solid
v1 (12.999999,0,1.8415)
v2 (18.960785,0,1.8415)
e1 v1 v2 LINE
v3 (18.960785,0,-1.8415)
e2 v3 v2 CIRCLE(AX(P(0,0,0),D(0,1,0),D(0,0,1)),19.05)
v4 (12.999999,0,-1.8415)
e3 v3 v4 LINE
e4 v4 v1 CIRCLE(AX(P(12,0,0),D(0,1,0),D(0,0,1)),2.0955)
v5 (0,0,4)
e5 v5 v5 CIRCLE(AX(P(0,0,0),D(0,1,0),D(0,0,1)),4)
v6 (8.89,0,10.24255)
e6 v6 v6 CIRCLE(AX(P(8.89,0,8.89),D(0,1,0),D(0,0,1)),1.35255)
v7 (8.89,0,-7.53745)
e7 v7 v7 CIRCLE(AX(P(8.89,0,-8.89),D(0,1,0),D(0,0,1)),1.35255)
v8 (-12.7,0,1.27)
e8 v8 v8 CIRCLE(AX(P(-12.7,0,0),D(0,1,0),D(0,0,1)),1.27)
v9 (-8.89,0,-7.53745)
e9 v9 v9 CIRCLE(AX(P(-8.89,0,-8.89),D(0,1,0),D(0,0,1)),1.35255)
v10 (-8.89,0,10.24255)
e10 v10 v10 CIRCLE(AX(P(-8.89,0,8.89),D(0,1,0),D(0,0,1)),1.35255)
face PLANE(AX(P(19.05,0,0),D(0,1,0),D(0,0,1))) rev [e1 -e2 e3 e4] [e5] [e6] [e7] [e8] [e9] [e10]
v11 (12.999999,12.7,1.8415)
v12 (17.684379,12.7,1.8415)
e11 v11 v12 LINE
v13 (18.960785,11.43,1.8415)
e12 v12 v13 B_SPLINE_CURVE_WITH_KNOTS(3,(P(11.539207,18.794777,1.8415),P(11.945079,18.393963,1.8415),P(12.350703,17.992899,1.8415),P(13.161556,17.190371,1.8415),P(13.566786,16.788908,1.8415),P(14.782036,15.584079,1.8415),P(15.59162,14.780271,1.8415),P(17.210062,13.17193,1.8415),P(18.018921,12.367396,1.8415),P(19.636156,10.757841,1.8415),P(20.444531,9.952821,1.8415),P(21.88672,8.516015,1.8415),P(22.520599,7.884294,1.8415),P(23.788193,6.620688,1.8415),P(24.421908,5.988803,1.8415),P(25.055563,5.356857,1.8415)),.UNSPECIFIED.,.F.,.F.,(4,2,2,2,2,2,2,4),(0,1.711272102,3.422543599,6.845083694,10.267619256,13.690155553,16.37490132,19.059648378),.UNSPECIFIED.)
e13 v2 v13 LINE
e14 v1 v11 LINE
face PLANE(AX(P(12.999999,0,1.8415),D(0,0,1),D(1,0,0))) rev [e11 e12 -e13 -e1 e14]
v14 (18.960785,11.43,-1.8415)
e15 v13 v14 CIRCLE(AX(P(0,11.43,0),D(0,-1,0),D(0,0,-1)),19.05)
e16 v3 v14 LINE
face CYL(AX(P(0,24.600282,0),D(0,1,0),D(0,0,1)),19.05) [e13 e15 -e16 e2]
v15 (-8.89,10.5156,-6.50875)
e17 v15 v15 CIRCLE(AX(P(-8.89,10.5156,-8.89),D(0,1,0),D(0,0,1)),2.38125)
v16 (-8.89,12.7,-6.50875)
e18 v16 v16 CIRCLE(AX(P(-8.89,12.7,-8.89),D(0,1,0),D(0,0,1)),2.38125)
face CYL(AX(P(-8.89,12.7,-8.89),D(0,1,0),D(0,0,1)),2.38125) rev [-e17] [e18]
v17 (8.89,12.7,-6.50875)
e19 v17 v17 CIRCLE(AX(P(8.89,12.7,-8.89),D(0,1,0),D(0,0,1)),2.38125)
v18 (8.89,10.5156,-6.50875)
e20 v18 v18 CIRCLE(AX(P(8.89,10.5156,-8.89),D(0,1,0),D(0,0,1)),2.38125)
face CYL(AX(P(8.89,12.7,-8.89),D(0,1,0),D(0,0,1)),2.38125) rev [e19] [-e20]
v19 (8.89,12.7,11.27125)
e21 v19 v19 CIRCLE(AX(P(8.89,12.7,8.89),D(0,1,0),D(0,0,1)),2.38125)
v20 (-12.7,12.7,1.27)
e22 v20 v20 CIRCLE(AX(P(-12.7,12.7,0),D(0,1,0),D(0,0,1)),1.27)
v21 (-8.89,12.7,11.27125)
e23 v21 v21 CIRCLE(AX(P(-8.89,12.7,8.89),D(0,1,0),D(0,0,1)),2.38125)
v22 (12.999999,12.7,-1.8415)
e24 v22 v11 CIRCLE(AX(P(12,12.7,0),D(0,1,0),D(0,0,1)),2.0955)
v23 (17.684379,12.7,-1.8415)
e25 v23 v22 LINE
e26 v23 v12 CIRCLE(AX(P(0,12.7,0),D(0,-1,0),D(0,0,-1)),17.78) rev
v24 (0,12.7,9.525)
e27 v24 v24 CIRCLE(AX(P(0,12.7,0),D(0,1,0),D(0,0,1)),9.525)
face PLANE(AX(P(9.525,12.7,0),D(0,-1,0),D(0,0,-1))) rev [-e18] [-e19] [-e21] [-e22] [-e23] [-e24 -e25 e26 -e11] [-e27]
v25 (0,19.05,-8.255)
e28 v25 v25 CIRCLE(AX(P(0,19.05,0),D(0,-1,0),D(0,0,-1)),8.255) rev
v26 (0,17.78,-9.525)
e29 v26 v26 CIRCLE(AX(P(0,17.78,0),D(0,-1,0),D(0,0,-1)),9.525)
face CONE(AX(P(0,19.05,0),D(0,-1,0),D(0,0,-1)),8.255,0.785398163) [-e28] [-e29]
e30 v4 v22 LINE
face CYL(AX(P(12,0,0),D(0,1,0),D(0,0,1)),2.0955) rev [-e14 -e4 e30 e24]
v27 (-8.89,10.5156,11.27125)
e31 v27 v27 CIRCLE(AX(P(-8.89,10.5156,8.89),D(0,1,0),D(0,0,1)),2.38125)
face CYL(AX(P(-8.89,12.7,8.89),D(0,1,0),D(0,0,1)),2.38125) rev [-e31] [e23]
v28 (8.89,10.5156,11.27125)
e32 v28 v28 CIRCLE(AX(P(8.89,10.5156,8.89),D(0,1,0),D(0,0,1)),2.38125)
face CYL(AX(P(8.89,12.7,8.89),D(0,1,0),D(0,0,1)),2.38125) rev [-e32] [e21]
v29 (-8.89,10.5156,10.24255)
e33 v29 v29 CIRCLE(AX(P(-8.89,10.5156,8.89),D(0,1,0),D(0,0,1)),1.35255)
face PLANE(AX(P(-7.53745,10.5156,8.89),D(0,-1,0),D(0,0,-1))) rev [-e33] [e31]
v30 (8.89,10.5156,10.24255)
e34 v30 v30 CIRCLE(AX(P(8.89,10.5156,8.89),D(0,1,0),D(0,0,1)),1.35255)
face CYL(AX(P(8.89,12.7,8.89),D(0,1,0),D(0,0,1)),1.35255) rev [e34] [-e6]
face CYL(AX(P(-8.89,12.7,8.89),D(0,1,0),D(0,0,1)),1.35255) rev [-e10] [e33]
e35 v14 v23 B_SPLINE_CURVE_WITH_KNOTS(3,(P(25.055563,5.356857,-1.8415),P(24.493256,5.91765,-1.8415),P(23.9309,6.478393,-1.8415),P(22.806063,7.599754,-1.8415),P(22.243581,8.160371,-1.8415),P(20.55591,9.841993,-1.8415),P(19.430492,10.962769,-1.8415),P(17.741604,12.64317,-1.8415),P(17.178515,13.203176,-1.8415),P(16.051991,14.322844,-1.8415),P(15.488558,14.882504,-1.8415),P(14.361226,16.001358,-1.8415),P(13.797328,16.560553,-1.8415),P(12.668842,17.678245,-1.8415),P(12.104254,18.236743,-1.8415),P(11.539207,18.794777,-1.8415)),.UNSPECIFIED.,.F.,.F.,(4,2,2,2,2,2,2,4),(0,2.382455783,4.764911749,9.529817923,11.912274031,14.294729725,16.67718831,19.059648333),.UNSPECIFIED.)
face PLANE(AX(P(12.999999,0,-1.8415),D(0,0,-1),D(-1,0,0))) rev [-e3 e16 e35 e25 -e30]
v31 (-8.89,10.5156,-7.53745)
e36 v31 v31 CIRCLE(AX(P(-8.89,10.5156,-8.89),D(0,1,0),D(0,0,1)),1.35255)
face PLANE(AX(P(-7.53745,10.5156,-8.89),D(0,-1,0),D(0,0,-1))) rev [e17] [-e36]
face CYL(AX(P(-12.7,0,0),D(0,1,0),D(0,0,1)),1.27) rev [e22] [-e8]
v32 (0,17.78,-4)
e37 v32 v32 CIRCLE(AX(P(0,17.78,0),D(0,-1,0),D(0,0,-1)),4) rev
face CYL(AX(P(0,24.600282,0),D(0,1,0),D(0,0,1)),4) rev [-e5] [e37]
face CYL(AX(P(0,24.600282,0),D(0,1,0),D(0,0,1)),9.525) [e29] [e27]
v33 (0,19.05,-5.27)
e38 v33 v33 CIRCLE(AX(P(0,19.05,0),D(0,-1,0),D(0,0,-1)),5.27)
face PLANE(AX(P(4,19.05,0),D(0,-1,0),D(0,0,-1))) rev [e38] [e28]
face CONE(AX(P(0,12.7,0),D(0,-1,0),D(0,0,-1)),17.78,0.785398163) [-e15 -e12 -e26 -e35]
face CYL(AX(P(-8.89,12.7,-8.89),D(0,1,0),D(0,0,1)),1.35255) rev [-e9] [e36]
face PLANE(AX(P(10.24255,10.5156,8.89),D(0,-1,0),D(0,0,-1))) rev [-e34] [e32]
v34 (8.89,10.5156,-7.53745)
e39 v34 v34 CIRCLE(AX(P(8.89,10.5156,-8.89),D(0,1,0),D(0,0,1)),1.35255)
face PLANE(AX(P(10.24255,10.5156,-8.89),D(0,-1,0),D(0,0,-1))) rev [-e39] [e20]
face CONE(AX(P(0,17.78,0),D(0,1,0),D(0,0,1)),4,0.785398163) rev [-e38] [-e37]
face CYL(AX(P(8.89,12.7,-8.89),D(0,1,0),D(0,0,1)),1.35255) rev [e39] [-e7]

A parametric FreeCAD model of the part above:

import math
import FreeCAD as App
import Part
import Sketcher

V = App.Vector
Q = App.Units.Quantity


def edges_at(feature, points):
    """Names of the edges that pass closest to the given points."""
    edges = feature.Shape.Edges
    near = lambda p: min(range(len(edges)), key=lambda i: edges[i].distToShape(Part.Vertex(*p))[0])
    return sorted({f"Edge{near(p) + 1}" for p in points})

doc = App.newDocument("Part")
params = doc.addObject("Spreadsheet::Sheet", "Params")
for row, (alias, value) in enumerate([
    ("sketch1_height", "0.5 in"),
    ("sketch1_height2", "0.75 in"),
    ("sketch1_width", "0.375 in"),
    ("revolution_angle", "360 deg"),
    ("chamfer_size", "0.05 in"),
    ("hole_diameter", "0.1065 in"),
    ("hole_depth", "0.5 in"),
    ("hole_cbore_diameter", "0.1875 in"),
    ("hole_cbore_depth", "0.086 in"),
    ("sketch3_radius", "0.75 in"),
    ("sketch4_diameter", "0.1 in"),
], start=1):
    params.set(f"A{row}", alias)
    params.set(f"B{row}", "=" + value)
    params.setAlias(f"B{row}", alias)

body = doc.addObject("PartDesign::Body", "Body")

# Sketch on XY plane
sketch1 = doc.addObject("Sketcher::SketchObject", "Sketch")
body.addObject(sketch1)
sketch1.AttachmentSupport = (doc.XY_Plane, [""])
sketch1.MapMode = "FlatFace"
sketch1.addGeometry([
    Part.LineSegment(V(9.525, 19.05, 0), V(4, 19.05, 0)),  # 0
    Part.LineSegment(V(4, 19.05, 0), V(4, 0, 0)),  # 1
    Part.LineSegment(V(4, 0, 0), V(19.05, 0, 0)),  # 2
    Part.LineSegment(V(19.05, 0, 0), V(19.05, 12.7, 0)),  # 3
    Part.LineSegment(V(19.05, 12.7, 0), V(9.525, 12.7, 0)),  # 4
    Part.LineSegment(V(9.525, 12.7, 0), V(9.525, 19.05, 0)),  # 5
], False)
sketch1.addConstraint([
    Sketcher.Constraint("Coincident", 0, 2, 1, 1),
    Sketcher.Constraint("Coincident", 1, 2, 2, 1),
    Sketcher.Constraint("Coincident", 2, 2, 3, 1),
    Sketcher.Constraint("Coincident", 3, 2, 4, 1),
    Sketcher.Constraint("Coincident", 4, 2, 5, 1),
    Sketcher.Constraint("Coincident", 5, 2, 0, 1),
    Sketcher.Constraint("Horizontal", 0),
    Sketcher.Constraint("Vertical", 1),
    Sketcher.Constraint("Horizontal", 2),
    Sketcher.Constraint("Vertical", 3),
    Sketcher.Constraint("Horizontal", 4),
    Sketcher.Constraint("Vertical", 5),
    Sketcher.Constraint("PointOnObject", 1, 2, -1),
    Sketcher.Constraint("DistanceY", 3, 1, 3, 2, Q("0.5 in")),
    Sketcher.Constraint("DistanceY", 1, 2, 1, 1, Q("0.75 in")),
    Sketcher.Constraint("DistanceX", 4, 2, 4, 1, Q("0.375 in")),
    Sketcher.Constraint("DistanceX", -1, 1, 2, 2, Q("0.75 in")),
    Sketcher.Constraint("DistanceX", 0, 2, 0, 1, Q("5.525 mm")),
])
sketch1.setExpression("Constraints[13]", "Params.sketch1_height")
sketch1.setExpression("Constraints[14]", "Params.sketch1_height2")
sketch1.setExpression("Constraints[15]", "Params.sketch1_width")
revolution = doc.addObject("PartDesign::Revolution", "Revolution")
body.addObject(revolution)
revolution.Profile = sketch1
revolution.ReferenceAxis = (sketch1, ["V_Axis"])
revolution.setExpression("Angle", "Params.revolution_angle")
doc.recompute()

chamfer = doc.addObject("PartDesign::Chamfer", "Chamfer")
body.addObject(chamfer)
chamfer.Base = (revolution, edges_at(revolution, [(-19.05, 12.7, 0), (-9.525, 19.05, 0), (-4, 19.05, 0)]))
chamfer.setExpression("Size", "Params.chamfer_size")

# Sketch on XZ plane
sketch2 = doc.addObject("Sketcher::SketchObject", "Sketch001")
body.addObject(sketch2)
sketch2.AttachmentSupport = (doc.XZ_Plane, [""])
sketch2.MapMode = "FlatFace"
sketch2.AttachmentOffset = App.Placement(V(0, 0, -0.5 * 25.4), App.Rotation())
sketch2.addGeometry([
    Part.Circle(V(-8.89, 8.89, 0), V(0, 0, 1), 1.35255),
    Part.Circle(V(8.89, 8.89, 0), V(0, 0, 1), 1.35255),
    Part.Circle(V(8.89, -8.89, 0), V(0, 0, 1), 1.35255),
    Part.Circle(V(-8.89, -8.89, 0), V(0, 0, 1), 1.35255),
], False)
sketch2.addConstraint([
    Sketcher.Constraint("Equal", 0, 1),
    Sketcher.Constraint("Equal", 1, 2),
    Sketcher.Constraint("Equal", 2, 3),
    Sketcher.Constraint("Symmetric", 0, 3, 2, 3, -1, 1),
    Sketcher.Constraint("Symmetric", 1, 3, 3, 3, -1, 1),
    Sketcher.Constraint("Symmetric", 0, 3, 1, 3, -2),
    Sketcher.Constraint("Diameter", 0, Q("0.1065 in")),
    Sketcher.Constraint("DistanceX", 0, 3, 1, 3, Q("0.7 in")),
    Sketcher.Constraint("DistanceY", 2, 3, 1, 3, Q("0.7 in")),
])
doc.recompute()
hole = doc.addObject("PartDesign::Hole", "Hole")
body.addObject(hole)
hole.Profile = sketch2
hole.ThreadType = "None"
hole.setExpression("Diameter", "Params.hole_diameter")
hole.DepthType = "Dimension"
hole.setExpression("Depth", "Params.hole_depth")
hole.DrillPoint = "Flat"
hole.HoleCutType = "Counterbore"
hole.setExpression("HoleCutDiameter", "Params.hole_cbore_diameter")
hole.setExpression("HoleCutDepth", "Params.hole_cbore_depth")
hole.Reversed = True

# Sketch on XZ plane
sketch3 = doc.addObject("Sketcher::SketchObject", "Sketch002")
body.addObject(sketch3)
sketch3.AttachmentSupport = (doc.XZ_Plane, [""])
sketch3.MapMode = "FlatFace"
sketch3.AttachmentOffset = App.Placement(V(0, 0, -0.5 * 25.4), App.Rotation())
sketch3.addGeometry([
    Part.LineSegment(V(18.960785, -1.8415, 0), V(12.999999, -1.8415, 0)),
    Part.ArcOfCircle(Part.Circle(V(12, 0, 0), V(0, 0, 1), 2.0955), math.radians(61.49649), math.radians(298.50351)),
    Part.LineSegment(V(12.999999, 1.8415, 0), V(18.960785, 1.8415, 0)),
    Part.ArcOfCircle(Part.Circle(V(0, 0, 0), V(0, 0, 1), 19.05), math.radians(-5.547254), math.radians(5.547254)),
], False)
sketch3.addConstraint([
    Sketcher.Constraint("Coincident", 0, 2, 1, 2),
    Sketcher.Constraint("Coincident", 1, 1, 2, 1),
    Sketcher.Constraint("Coincident", 2, 2, 3, 2),
    Sketcher.Constraint("Coincident", 3, 1, 0, 1),
    Sketcher.Constraint("Horizontal", 0),
    Sketcher.Constraint("Horizontal", 2),
    Sketcher.Constraint("Coincident", 3, 3, -1, 1),
    Sketcher.Constraint("Symmetric", 0, 2, 1, 1, -1),
    Sketcher.Constraint("Radius", 3, Q("0.75 in")),
    Sketcher.Constraint("Radius", 1, Q("0.0825 in")),
    Sketcher.Constraint("DistanceY", 0, 2, 1, 1, Q("0.145 in")),
    Sketcher.Constraint("DistanceX", -1, 1, 1, 3, Q("12 mm")),
])
sketch3.setExpression("Constraints[8]", "Params.sketch3_radius")
pocket1 = doc.addObject("PartDesign::Pocket", "Pocket")
body.addObject(pocket1)
pocket1.Profile = sketch3
pocket1.Type = "ThroughAll"
pocket1.Reversed = True

# Sketch on XZ plane
sketch4 = doc.addObject("Sketcher::SketchObject", "Sketch003")
body.addObject(sketch4)
sketch4.AttachmentSupport = (doc.XZ_Plane, [""])
sketch4.MapMode = "FlatFace"
sketch4.AttachmentOffset = App.Placement(V(0, 0, -0.5 * 25.4), App.Rotation())
sketch4.addGeometry(Part.Circle(V(-12.7, 0, 0), V(0, 0, 1), 1.27), False)
sketch4.addConstraint([
    Sketcher.Constraint("PointOnObject", 0, 3, -1),
    Sketcher.Constraint("Diameter", 0, Q("0.1 in")),
    Sketcher.Constraint("DistanceX", 0, 3, -1, 1, Q("0.5 in")),
])
sketch4.setExpression("Constraints[1]", "Params.sketch4_diameter")
pocket2 = doc.addObject("PartDesign::Pocket", "Pocket001")
body.addObject(pocket2)
pocket2.Profile = sketch4
pocket2.Type = "ThroughAll"
pocket2.Reversed = True

doc.recompute()
